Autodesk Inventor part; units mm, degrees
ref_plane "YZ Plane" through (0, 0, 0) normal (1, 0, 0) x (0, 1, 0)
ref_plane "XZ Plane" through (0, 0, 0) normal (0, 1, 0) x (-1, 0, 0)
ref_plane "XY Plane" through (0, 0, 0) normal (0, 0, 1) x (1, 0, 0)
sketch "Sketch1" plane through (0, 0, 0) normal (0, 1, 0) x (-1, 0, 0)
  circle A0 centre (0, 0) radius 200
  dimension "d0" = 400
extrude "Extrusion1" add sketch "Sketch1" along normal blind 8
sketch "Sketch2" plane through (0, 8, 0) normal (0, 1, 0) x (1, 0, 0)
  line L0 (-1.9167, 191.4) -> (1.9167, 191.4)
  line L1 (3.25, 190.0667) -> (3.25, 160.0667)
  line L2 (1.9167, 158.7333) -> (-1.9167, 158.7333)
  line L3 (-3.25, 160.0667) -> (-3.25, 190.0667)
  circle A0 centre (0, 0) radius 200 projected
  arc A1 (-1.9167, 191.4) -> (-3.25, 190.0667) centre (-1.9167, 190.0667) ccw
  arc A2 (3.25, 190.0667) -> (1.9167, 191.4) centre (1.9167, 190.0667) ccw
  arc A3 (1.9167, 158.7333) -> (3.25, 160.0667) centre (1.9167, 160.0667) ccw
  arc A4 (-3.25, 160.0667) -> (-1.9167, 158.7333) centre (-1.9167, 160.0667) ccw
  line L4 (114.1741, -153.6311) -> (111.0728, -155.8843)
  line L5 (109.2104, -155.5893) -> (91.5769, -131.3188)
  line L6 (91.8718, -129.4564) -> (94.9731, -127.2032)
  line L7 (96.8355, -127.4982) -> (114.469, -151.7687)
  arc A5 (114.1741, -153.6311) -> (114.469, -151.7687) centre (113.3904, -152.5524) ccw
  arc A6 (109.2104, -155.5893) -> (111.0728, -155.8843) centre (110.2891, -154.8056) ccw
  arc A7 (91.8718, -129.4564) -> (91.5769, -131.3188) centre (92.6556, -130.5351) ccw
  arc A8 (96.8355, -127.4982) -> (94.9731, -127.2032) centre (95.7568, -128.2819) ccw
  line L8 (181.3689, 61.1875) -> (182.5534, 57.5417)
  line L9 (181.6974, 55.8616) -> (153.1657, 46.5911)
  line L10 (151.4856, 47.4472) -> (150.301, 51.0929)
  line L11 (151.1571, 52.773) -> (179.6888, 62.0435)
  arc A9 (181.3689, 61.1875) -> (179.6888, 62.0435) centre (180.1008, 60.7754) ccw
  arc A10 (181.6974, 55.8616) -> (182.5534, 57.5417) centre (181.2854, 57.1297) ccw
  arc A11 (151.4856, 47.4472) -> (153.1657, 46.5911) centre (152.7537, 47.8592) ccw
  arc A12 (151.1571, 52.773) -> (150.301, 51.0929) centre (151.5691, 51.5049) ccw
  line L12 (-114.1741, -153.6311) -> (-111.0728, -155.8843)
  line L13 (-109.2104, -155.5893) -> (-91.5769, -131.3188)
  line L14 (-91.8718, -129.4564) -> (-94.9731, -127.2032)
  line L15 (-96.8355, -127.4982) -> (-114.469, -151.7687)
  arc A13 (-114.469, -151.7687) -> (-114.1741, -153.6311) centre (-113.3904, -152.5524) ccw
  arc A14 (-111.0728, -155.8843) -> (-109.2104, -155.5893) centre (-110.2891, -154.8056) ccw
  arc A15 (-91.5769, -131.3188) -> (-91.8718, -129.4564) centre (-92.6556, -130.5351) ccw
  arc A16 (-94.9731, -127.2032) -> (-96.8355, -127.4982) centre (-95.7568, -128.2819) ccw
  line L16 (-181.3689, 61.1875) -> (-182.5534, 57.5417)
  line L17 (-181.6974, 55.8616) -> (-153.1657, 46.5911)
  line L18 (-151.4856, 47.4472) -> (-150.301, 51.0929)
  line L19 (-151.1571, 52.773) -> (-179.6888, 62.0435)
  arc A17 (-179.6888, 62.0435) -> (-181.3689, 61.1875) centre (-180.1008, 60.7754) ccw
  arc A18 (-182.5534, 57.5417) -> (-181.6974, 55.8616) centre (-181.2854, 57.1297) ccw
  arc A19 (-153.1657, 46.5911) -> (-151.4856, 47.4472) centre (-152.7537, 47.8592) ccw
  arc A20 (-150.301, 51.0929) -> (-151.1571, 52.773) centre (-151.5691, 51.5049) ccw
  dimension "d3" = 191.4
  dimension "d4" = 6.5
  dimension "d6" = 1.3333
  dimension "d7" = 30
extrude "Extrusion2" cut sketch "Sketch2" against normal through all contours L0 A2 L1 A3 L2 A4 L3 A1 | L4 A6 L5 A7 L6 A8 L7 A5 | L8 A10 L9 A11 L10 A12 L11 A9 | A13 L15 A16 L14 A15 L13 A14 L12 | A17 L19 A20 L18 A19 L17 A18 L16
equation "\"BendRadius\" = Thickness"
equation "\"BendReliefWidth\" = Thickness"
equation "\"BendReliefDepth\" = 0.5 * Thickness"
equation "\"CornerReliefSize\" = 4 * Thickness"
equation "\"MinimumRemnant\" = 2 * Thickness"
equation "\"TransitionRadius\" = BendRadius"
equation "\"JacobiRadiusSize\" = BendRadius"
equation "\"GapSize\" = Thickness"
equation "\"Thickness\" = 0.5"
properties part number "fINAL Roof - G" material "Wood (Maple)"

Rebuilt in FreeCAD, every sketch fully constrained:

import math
import FreeCAD as App
import Part
import Sketcher
from FreeCAD import Vector
Q = App.Units.Quantity

doc = App.newDocument("Part")
body = doc.addObject("PartDesign::Body", "Body")

# Sketch on XZ plane
sketch1 = body.newObject("Sketcher::SketchObject", "Sketch")
sketch1.AttachmentSupport = (doc.getObject("XZ_Plane"), [""])
sketch1.MapMode = "FlatFace"
sketch1.addGeometry(Part.Circle(Vector(0, 0, 0), Vector(0, 0, 1), 200), False)
sketch1.addConstraint([
    Sketcher.Constraint("Coincident", 0, 3, -1, 1),
    Sketcher.Constraint("Diameter", 0, Q("400 mm")),
])
pad1 = body.newObject("PartDesign::Pad", "Pad")
pad1.Profile = sketch1
pad1.Length = 8
pad1.Reversed = True

# Sketch on XZ plane
sketch2 = body.newObject("Sketcher::SketchObject", "Sketch001")
sketch2.AttachmentSupport = (doc.getObject("XZ_Plane"), [""])
sketch2.MapMode = "FlatFace"
sketch2.AttachmentOffset = App.Placement(Vector(0, 0, -8), App.Rotation())
sketch2.addGeometry([
    Part.LineSegment(Vector(1.9, -191.4, 0), Vector(-1.9, -191.4, 0)),  # 0
    Part.ArcOfCircle(Part.Circle(Vector(-1.9, -190.1, 0), Vector(0, 0, 1), 1.3), math.radians(180), math.radians(270)),  # 1
    Part.LineSegment(Vector(-3.2, -190.1, 0), Vector(-3.2, -160.1, 0)),  # 2
    Part.ArcOfCircle(Part.Circle(Vector(-1.9, -160.1, 0), Vector(0, 0, 1), 1.3), math.radians(90), math.radians(180)),  # 3
    Part.LineSegment(Vector(-1.9, -158.7, 0), Vector(1.9, -158.7, 0)),  # 4
    Part.ArcOfCircle(Part.Circle(Vector(1.9, -160.1, 0), Vector(0, 0, 1), 1.3), math.radians(0), math.radians(90)),  # 5
    Part.LineSegment(Vector(3.2, -160.1, 0), Vector(3.2, -190.1, 0)),  # 6
    Part.ArcOfCircle(Part.Circle(Vector(1.9, -190.1, 0), Vector(0, 0, 1), 1.3), math.radians(-90), math.radians(0)),  # 7
    Part.LineSegment(Vector(111.1, 155.9, 0), Vector(114.2, 153.6, 0)),  # 8
    Part.ArcOfCircle(Part.Circle(Vector(113.4, 152.6, 0), Vector(0, 0, 1), 1.3), math.radians(-36), math.radians(54)),  # 9
    Part.LineSegment(Vector(114.5, 151.8, 0), Vector(96.8, 127.5, 0)),  # 10
    Part.ArcOfCircle(Part.Circle(Vector(95.8, 128.3, 0), Vector(0, 0, 1), 1.3), math.radians(-126), math.radians(-36)),  # 11
    Part.LineSegment(Vector(95, 127.2, 0), Vector(91.9, 129.5, 0)),  # 12
    Part.ArcOfCircle(Part.Circle(Vector(92.7, 130.5, 0), Vector(0, 0, 1), 1.3), math.radians(144), math.radians(234)),  # 13
    Part.LineSegment(Vector(91.6, 131.3, 0), Vector(109.2, 155.6, 0)),  # 14
    Part.ArcOfCircle(Part.Circle(Vector(110.3, 154.8, 0), Vector(0, 0, 1), 1.3), math.radians(54), math.radians(144)),  # 15
    Part.LineSegment(Vector(182.6, -57.5, 0), Vector(181.4, -61.2, 0)),  # 16
    Part.ArcOfCircle(Part.Circle(Vector(180.1, -60.8, 0), Vector(0, 0, 1), 1.3), math.radians(-108), math.radians(-18)),  # 17
    Part.LineSegment(Vector(179.7, -62, 0), Vector(151.2, -52.8, 0)),  # 18
    Part.ArcOfCircle(Part.Circle(Vector(151.6, -51.5, 0), Vector(0, 0, 1), 1.3), math.radians(162), math.radians(252)),  # 19
    Part.LineSegment(Vector(150.3, -51.1, 0), Vector(151.5, -47.4, 0)),  # 20
    Part.ArcOfCircle(Part.Circle(Vector(152.8, -47.9, 0), Vector(0, 0, 1), 1.3), math.radians(72), math.radians(162)),  # 21
    Part.LineSegment(Vector(153.2, -46.6, 0), Vector(181.7, -55.9, 0)),  # 22
    Part.ArcOfCircle(Part.Circle(Vector(181.3, -57.1, 0), Vector(0, 0, 1), 1.3), math.radians(-18), math.radians(72)),  # 23
    Part.ArcOfCircle(Part.Circle(Vector(-113.4, 152.6, 0), Vector(0, 0, 1), 1.3), math.radians(126), math.radians(216)),  # 24
    Part.LineSegment(Vector(-114.2, 153.6, 0), Vector(-111.1, 155.9, 0)),  # 25
    Part.ArcOfCircle(Part.Circle(Vector(-110.3, 154.8, 0), Vector(0, 0, 1), 1.3), math.radians(36), math.radians(126)),  # 26
    Part.LineSegment(Vector(-109.2, 155.6, 0), Vector(-91.6, 131.3, 0)),  # 27
    Part.ArcOfCircle(Part.Circle(Vector(-92.7, 130.5, 0), Vector(0, 0, 1), 1.3), math.radians(-54), math.radians(36)),  # 28
    Part.LineSegment(Vector(-91.9, 129.5, 0), Vector(-95, 127.2, 0)),  # 29
    Part.ArcOfCircle(Part.Circle(Vector(-95.8, 128.3, 0), Vector(0, 0, 1), 1.3), math.radians(-144), math.radians(-54)),  # 30
    Part.LineSegment(Vector(-96.8, 127.5, 0), Vector(-114.5, 151.8, 0)),  # 31
    Part.ArcOfCircle(Part.Circle(Vector(-180.1, -60.8, 0), Vector(0, 0, 1), 1.3), math.radians(-162), math.radians(-72)),  # 32
    Part.LineSegment(Vector(-181.4, -61.2, 0), Vector(-182.6, -57.5, 0)),  # 33
    Part.ArcOfCircle(Part.Circle(Vector(-181.3, -57.1, 0), Vector(0, 0, 1), 1.3), math.radians(108), math.radians(198)),  # 34
    Part.LineSegment(Vector(-181.7, -55.9, 0), Vector(-153.2, -46.6, 0)),  # 35
    Part.ArcOfCircle(Part.Circle(Vector(-152.8, -47.9, 0), Vector(0, 0, 1), 1.3), math.radians(18), math.radians(108)),  # 36
    Part.LineSegment(Vector(-151.5, -47.4, 0), Vector(-150.3, -51.1, 0)),  # 37
    Part.ArcOfCircle(Part.Circle(Vector(-151.6, -51.5, 0), Vector(0, 0, 1), 1.3), math.radians(-72), math.radians(18)),  # 38
    Part.LineSegment(Vector(-151.2, -52.8, 0), Vector(-179.7, -62, 0)),  # 39
], False)
sketch2.addConstraint([
    Sketcher.Constraint("Tangent", 0, 2, 1, 2),
    Sketcher.Constraint("Tangent", 1, 1, 2, 1),
    Sketcher.Constraint("Tangent", 2, 2, 3, 2),
    Sketcher.Constraint("Tangent", 3, 1, 4, 1),
    Sketcher.Constraint("Tangent", 4, 2, 5, 2),
    Sketcher.Constraint("Tangent", 5, 1, 6, 1),
    Sketcher.Constraint("Tangent", 6, 2, 7, 2),
    Sketcher.Constraint("Tangent", 7, 1, 0, 1),
    Sketcher.Constraint("Tangent", 8, 2, 9, 2),
    Sketcher.Constraint("Tangent", 9, 1, 10, 1),
    Sketcher.Constraint("Tangent", 10, 2, 11, 2),
    Sketcher.Constraint("Tangent", 11, 1, 12, 1),
    Sketcher.Constraint("Tangent", 12, 2, 13, 2),
    Sketcher.Constraint("Tangent", 13, 1, 14, 1),
    Sketcher.Constraint("Tangent", 14, 2, 15, 2),
    Sketcher.Constraint("Tangent", 15, 1, 8, 1),
    Sketcher.Constraint("Tangent", 16, 2, 17, 2),
    Sketcher.Constraint("Tangent", 17, 1, 18, 1),
    Sketcher.Constraint("Tangent", 18, 2, 19, 2),
    Sketcher.Constraint("Tangent", 19, 1, 20, 1),
    Sketcher.Constraint("Tangent", 20, 2, 21, 2),
    Sketcher.Constraint("Tangent", 21, 1, 22, 1),
    Sketcher.Constraint("Tangent", 22, 2, 23, 2),
    Sketcher.Constraint("Tangent", 23, 1, 16, 1),
    Sketcher.Constraint("Tangent", 24, 1, 25, 1),
    Sketcher.Constraint("Tangent", 25, 2, 26, 2),
    Sketcher.Constraint("Tangent", 26, 1, 27, 1),
    Sketcher.Constraint("Tangent", 27, 2, 28, 2),
    Sketcher.Constraint("Tangent", 28, 1, 29, 1),
    Sketcher.Constraint("Tangent", 29, 2, 30, 2),
    Sketcher.Constraint("Tangent", 30, 1, 31, 1),
    Sketcher.Constraint("Tangent", 31, 2, 24, 2),
    Sketcher.Constraint("Tangent", 32, 1, 33, 1),
    Sketcher.Constraint("Tangent", 33, 2, 34, 2),
    Sketcher.Constraint("Tangent", 34, 1, 35, 1),
    Sketcher.Constraint("Tangent", 35, 2, 36, 2),
    Sketcher.Constraint("Tangent", 36, 1, 37, 1),
    Sketcher.Constraint("Tangent", 37, 2, 38, 2),
    Sketcher.Constraint("Tangent", 38, 1, 39, 1),
    Sketcher.Constraint("Tangent", 39, 2, 32, 2),
    Sketcher.Constraint("Horizontal", 0),
    Sketcher.Constraint("Vertical", 2),
    Sketcher.Constraint("Horizontal", 4),
    Sketcher.Constraint("Vertical", 6),
    Sketcher.Constraint("Equal", 1, 3),
    Sketcher.Constraint("Equal", 3, 5),
    Sketcher.Constraint("Equal", 5, 7),
    Sketcher.Constraint("Equal", 7, 9),
    Sketcher.Constraint("Equal", 9, 11),
    Sketcher.Constraint("Equal", 11, 13),
    Sketcher.Constraint("Equal", 13, 15),
    Sketcher.Constraint("Equal", 15, 17),
    Sketcher.Constraint("Equal", 17, 19),
    Sketcher.Constraint("Equal", 19, 21),
    Sketcher.Constraint("Equal", 21, 23),
    Sketcher.Constraint("Equal", 23, 24),
    Sketcher.Constraint("Equal", 24, 26),
    Sketcher.Constraint("Equal", 26, 28),
    Sketcher.Constraint("Equal", 28, 30),
    Sketcher.Constraint("Equal", 30, 32),
    Sketcher.Constraint("Equal", 32, 34),
    Sketcher.Constraint("Equal", 34, 36),
    Sketcher.Constraint("Equal", 36, 38),
    Sketcher.Constraint("Symmetric", 9, 3, 24, 3, -2),
    Sketcher.Constraint("Symmetric", 15, 3, 26, 3, -2),
    Sketcher.Constraint("Symmetric", 13, 3, 28, 3, -2),
    Sketcher.Constraint("Symmetric", 11, 3, 30, 3, -2),
    Sketcher.Constraint("Symmetric", 17, 3, 32, 3, -2),
    Sketcher.Constraint("Symmetric", 23, 3, 34, 3, -2),
    Sketcher.Constraint("Symmetric", 21, 3, 36, 3, -2),
    Sketcher.Constraint("Symmetric", 19, 3, 38, 3, -2),
    Sketcher.Constraint("Perpendicular", 8, 10),
    Sketcher.Constraint("Perpendicular", 10, 12),
    Sketcher.Constraint("Perpendicular", 12, 14),
    Sketcher.Constraint("Perpendicular", 16, 18),
    Sketcher.Constraint("Perpendicular", 18, 20),
    Sketcher.Constraint("Perpendicular", 20, 22),
    Sketcher.Constraint("Equal", 12, 16),
    Sketcher.Constraint("Equal", 14, 18),
    Sketcher.Constraint("Radius", 1, Q("0.0525 in")),
    Sketcher.Constraint("DistanceY", 2, 1, 2, 2, Q("1.1811 in")),
    Sketcher.Constraint("Angle", 8, Q("-35.9997 deg")),
    Sketcher.Constraint("Angle", 18, Q("162 deg")),
    Sketcher.Constraint("Distance", 10, Q("1.1811 in")),
    Sketcher.Constraint("DistanceX", 2, 2, 5, 1, Q("0.2559 in")),
    Sketcher.Constraint("DistanceY", 0, 2, -1, 1, Q("191.4 mm")),
    Sketcher.Constraint("DistanceY", -1, 1, 9, 3, Q("6.006 in")),
    Sketcher.Constraint("DistanceX", -1, 1, 12, 2, Q("3.617 in")),
    Sketcher.Constraint("DistanceX", -1, 1, 20, 2, Q("5.964 in")),
    Sketcher.Constraint("DistanceY", 20, 2, -1, 1, Q("1.868 in")),
    Sketcher.Constraint("DistanceX", 25, 2, 30, 3, Q("0.603 in")),
    Sketcher.Constraint("DistanceX", 5, 3, 11, 3, Q("3.6945 in")),
])
pocket1 = body.newObject("PartDesign::Pocket", "Pocket")
pocket1.Profile = sketch2
pocket1.Type = "ThroughAll"
pocket1.Reversed = True

doc.recompute()
